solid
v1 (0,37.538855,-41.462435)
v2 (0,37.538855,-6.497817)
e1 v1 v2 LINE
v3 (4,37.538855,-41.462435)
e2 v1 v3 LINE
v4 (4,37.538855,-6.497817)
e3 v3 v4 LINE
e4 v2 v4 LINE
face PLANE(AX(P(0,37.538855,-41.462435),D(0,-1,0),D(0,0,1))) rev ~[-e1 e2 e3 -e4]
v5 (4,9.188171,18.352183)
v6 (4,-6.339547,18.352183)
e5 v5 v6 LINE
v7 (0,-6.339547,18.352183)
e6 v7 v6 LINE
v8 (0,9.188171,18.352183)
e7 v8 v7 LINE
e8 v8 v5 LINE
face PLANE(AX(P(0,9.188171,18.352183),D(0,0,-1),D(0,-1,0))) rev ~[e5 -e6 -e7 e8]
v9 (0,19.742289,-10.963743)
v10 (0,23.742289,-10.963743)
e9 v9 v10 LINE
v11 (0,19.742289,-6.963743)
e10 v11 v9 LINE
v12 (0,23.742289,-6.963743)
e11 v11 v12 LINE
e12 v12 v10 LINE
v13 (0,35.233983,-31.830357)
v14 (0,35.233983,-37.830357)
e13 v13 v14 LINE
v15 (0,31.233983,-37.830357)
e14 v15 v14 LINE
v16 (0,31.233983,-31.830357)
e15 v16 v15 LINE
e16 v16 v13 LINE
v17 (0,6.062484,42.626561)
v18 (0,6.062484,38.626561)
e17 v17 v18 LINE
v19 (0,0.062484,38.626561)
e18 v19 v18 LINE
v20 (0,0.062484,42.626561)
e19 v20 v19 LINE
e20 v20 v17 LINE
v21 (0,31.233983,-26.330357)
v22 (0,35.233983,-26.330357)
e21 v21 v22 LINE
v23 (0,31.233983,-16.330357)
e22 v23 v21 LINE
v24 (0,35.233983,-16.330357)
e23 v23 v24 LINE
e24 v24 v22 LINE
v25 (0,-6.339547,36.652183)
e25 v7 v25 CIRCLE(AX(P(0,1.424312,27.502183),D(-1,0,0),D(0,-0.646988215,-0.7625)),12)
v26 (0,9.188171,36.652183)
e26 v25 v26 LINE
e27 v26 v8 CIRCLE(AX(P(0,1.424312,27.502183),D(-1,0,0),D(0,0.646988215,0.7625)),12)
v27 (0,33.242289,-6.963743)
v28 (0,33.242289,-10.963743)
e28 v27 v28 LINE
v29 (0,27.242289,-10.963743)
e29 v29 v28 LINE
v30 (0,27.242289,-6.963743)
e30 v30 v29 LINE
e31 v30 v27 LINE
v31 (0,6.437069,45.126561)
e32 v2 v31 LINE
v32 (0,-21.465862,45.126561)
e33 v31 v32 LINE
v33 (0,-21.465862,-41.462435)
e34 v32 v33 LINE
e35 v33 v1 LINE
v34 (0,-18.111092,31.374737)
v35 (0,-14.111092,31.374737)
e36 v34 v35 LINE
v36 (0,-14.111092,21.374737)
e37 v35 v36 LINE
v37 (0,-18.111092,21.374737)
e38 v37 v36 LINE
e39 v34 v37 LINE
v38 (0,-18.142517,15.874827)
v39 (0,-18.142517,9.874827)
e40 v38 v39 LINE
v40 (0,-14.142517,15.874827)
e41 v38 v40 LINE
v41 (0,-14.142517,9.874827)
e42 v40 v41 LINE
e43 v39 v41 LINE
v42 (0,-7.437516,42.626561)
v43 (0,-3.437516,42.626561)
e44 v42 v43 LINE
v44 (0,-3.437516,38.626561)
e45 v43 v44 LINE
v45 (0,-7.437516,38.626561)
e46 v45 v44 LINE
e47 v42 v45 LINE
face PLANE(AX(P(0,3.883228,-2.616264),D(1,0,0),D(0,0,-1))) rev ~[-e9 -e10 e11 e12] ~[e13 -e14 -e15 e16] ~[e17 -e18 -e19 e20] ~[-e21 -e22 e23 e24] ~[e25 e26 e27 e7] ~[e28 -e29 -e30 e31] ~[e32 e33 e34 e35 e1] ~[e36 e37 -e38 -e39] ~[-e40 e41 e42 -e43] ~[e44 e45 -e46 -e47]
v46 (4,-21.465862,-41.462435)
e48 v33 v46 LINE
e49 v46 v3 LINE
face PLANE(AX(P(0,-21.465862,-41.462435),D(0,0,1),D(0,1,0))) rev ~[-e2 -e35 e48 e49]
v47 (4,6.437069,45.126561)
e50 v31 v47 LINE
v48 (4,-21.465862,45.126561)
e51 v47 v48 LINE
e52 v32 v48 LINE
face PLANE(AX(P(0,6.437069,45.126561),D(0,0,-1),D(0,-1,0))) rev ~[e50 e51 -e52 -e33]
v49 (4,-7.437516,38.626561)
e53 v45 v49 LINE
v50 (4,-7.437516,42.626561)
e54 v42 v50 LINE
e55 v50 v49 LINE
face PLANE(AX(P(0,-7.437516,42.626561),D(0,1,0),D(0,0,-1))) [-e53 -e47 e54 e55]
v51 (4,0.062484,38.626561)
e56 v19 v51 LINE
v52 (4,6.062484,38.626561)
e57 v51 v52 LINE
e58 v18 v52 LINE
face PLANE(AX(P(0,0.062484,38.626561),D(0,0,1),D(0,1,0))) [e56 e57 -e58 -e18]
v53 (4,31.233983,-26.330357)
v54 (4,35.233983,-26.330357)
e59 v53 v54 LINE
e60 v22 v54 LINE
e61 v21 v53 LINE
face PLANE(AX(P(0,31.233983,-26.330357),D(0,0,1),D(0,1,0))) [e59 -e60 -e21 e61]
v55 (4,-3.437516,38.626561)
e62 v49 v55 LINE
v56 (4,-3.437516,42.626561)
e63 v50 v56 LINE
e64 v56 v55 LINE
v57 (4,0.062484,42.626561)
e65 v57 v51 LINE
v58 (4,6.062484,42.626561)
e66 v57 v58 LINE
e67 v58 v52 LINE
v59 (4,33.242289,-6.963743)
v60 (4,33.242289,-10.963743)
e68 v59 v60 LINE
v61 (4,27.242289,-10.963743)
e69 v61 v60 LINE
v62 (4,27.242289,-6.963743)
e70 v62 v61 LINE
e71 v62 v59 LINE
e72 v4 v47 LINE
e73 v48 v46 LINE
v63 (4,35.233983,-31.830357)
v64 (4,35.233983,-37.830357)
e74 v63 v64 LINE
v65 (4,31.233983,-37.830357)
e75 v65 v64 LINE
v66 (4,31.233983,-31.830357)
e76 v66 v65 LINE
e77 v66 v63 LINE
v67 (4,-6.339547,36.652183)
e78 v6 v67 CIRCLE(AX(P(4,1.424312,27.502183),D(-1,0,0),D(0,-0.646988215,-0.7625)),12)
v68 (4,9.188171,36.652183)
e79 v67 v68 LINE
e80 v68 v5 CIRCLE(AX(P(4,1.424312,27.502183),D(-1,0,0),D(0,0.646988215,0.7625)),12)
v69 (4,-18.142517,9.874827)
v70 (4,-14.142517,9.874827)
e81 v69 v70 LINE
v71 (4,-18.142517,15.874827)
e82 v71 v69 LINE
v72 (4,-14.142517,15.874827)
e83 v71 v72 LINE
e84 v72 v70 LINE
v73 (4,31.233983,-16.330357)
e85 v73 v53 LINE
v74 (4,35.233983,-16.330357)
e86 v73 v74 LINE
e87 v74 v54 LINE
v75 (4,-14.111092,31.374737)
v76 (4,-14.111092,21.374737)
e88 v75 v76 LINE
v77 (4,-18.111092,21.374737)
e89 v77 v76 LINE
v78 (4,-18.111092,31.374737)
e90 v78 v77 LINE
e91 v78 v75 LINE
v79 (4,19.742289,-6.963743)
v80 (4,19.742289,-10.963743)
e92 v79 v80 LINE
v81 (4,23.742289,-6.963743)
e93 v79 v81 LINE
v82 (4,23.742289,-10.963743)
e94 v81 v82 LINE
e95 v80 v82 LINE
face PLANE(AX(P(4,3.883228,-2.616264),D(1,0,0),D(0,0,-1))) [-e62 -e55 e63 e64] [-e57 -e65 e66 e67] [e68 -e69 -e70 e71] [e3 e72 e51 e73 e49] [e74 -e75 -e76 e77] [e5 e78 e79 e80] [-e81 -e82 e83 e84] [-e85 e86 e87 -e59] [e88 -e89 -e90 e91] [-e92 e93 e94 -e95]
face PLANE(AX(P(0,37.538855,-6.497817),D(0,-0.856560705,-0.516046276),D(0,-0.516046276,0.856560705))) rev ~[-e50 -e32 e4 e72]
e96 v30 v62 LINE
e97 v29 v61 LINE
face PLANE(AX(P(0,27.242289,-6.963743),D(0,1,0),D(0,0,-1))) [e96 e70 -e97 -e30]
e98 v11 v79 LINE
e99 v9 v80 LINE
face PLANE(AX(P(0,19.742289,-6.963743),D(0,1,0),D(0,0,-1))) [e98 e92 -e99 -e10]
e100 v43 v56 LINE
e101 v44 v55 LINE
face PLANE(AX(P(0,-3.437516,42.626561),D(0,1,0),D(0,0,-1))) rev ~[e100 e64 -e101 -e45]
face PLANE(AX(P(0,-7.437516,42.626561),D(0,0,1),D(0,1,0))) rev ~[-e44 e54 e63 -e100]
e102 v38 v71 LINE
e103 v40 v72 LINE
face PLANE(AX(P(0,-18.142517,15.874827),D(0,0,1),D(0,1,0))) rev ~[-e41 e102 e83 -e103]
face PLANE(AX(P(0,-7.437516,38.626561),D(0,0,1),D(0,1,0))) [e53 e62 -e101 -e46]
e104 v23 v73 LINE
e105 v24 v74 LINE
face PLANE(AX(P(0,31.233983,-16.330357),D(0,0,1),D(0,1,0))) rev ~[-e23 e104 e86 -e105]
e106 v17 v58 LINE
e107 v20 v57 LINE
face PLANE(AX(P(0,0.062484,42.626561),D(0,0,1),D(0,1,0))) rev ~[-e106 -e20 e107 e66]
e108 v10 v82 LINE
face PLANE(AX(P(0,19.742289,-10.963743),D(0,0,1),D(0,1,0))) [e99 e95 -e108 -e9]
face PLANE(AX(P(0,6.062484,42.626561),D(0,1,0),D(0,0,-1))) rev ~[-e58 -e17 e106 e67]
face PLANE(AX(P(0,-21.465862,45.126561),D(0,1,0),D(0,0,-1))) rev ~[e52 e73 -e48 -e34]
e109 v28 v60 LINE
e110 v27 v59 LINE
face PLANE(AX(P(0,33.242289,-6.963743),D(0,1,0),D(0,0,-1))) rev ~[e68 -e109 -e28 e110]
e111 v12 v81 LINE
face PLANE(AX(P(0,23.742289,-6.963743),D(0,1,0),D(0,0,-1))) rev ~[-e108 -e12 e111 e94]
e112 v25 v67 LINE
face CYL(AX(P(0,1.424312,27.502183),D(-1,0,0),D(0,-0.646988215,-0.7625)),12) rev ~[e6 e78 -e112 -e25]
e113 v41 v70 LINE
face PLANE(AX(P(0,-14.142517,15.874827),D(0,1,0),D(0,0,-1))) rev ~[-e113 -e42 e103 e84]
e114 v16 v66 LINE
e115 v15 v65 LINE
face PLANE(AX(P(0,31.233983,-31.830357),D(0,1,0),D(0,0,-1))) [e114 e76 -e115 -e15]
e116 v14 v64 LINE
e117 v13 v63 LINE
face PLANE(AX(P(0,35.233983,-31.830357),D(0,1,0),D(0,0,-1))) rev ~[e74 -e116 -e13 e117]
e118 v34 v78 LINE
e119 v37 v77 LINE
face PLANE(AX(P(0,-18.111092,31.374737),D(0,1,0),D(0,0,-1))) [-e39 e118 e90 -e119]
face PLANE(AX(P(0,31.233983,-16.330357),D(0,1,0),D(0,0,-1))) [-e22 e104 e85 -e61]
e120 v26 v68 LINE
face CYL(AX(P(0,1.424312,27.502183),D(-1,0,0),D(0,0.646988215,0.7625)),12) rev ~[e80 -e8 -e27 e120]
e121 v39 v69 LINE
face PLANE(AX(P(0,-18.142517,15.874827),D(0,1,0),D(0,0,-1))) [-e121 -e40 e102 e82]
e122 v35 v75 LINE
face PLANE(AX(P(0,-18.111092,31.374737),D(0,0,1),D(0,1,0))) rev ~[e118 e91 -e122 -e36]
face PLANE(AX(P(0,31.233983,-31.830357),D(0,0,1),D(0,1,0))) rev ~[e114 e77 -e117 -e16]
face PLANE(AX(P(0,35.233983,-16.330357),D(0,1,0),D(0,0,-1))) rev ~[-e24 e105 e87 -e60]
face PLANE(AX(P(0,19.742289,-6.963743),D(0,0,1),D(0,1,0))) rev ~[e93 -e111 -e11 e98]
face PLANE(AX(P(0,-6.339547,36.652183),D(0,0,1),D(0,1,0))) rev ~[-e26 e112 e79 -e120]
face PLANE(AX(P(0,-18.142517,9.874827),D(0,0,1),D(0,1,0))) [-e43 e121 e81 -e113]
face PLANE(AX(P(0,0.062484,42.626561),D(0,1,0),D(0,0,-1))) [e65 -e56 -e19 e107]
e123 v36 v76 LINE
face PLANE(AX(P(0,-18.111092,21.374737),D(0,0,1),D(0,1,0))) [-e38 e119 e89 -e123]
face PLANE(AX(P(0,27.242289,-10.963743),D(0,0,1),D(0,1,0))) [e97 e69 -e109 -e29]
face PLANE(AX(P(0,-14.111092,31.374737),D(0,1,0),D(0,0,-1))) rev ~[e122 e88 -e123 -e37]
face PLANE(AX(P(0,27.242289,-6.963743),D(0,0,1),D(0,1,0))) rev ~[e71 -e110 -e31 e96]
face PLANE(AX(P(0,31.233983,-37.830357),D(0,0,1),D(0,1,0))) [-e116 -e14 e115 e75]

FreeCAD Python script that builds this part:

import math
import FreeCAD as App
import Part
import Sketcher

V = App.Vector

doc = App.newDocument("Part")
body = doc.addObject("PartDesign::Body", "Body")

# Sketch on YZ plane
sketch1 = body.newObject("Sketcher::SketchObject", "Sketch")
sketch1.AttachmentSupport = (doc.getObject("YZ_Plane"), [""])
sketch1.MapMode = "FlatFace"
sketch1.addGeometry([
    Part.LineSegment(V(-21.5, 45.1, 0), V(-21.5, -41.5, 0)),  # 0
    Part.LineSegment(V(-21.5, -41.5, 0), V(37.5, -41.5, 0)),  # 1
    Part.LineSegment(V(37.5, -41.5, 0), V(37.5, -6.5, 0)),  # 2
    Part.LineSegment(V(37.5, -6.5, 0), V(6.4, 45.1, 0)),  # 3
    Part.LineSegment(V(6.4, 45.1, 0), V(-21.5, 45.1, 0)),  # 4
    Part.LineSegment(V(-18.1, 21.4, 0), V(-18.1, 31.4, 0)),  # 5
    Part.LineSegment(V(-18.1, 31.4, 0), V(-14.1, 31.4, 0)),  # 6
    Part.LineSegment(V(-14.1, 31.4, 0), V(-14.1, 21.4, 0)),  # 7
    Part.LineSegment(V(-14.1, 21.4, 0), V(-18.1, 21.4, 0)),  # 8
    Part.LineSegment(V(-7.4, 38.6, 0), V(-7.4, 42.6, 0)),  # 9
    Part.LineSegment(V(-7.4, 42.6, 0), V(-3.4, 42.6, 0)),  # 10
    Part.LineSegment(V(-3.4, 42.6, 0), V(-3.4, 38.6, 0)),  # 11
    Part.LineSegment(V(-3.4, 38.6, 0), V(-7.4, 38.6, 0)),  # 12
    Part.LineSegment(V(-18.1, 9.9, 0), V(-18.1, 15.9, 0)),  # 13
    Part.LineSegment(V(-18.1, 15.9, 0), V(-14.1, 15.9, 0)),  # 14
    Part.LineSegment(V(-14.1, 15.9, 0), V(-14.1, 9.9, 0)),  # 15
    Part.LineSegment(V(-14.1, 9.9, 0), V(-18.1, 9.9, 0)),  # 16
    Part.ArcOfCircle(Part.Circle(V(1.4, 27.5, 0), V(0, 0, 1), 12), math.radians(130), math.radians(230)),  # 17
    Part.LineSegment(V(-6.3, 36.7, 0), V(9.2, 36.7, 0)),  # 18
    Part.ArcOfCircle(Part.Circle(V(1.4, 27.5, 0), V(0, 0, 1), 12), math.radians(-50), math.radians(50)),  # 19
    Part.LineSegment(V(9.2, 18.4, 0), V(-6.3, 18.4, 0)),  # 20
    Part.LineSegment(V(0.1, 38.6, 0), V(0.1, 42.6, 0)),  # 21
    Part.LineSegment(V(0.1, 42.6, 0), V(6.1, 42.6, 0)),  # 22
    Part.LineSegment(V(6.1, 42.6, 0), V(6.1, 38.6, 0)),  # 23
    Part.LineSegment(V(6.1, 38.6, 0), V(0.1, 38.6, 0)),  # 24
    Part.LineSegment(V(19.7, -11, 0), V(19.7, -7, 0)),  # 25
    Part.LineSegment(V(19.7, -7, 0), V(23.7, -7, 0)),  # 26
    Part.LineSegment(V(23.7, -7, 0), V(23.7, -11, 0)),  # 27
    Part.LineSegment(V(23.7, -11, 0), V(19.7, -11, 0)),  # 28
    Part.LineSegment(V(27.2, -11, 0), V(27.2, -7, 0)),  # 29
    Part.LineSegment(V(27.2, -7, 0), V(33.2, -7, 0)),  # 30
    Part.LineSegment(V(33.2, -7, 0), V(33.2, -11, 0)),  # 31
    Part.LineSegment(V(33.2, -11, 0), V(27.2, -11, 0)),  # 32
    Part.LineSegment(V(31.2, -26.3, 0), V(31.2, -16.3, 0)),  # 33
    Part.LineSegment(V(31.2, -16.3, 0), V(35.2, -16.3, 0)),  # 34
    Part.LineSegment(V(35.2, -16.3, 0), V(35.2, -26.3, 0)),  # 35
    Part.LineSegment(V(35.2, -26.3, 0), V(31.2, -26.3, 0)),  # 36
    Part.LineSegment(V(31.2, -37.8, 0), V(31.2, -31.8, 0)),  # 37
    Part.LineSegment(V(31.2, -31.8, 0), V(35.2, -31.8, 0)),  # 38
    Part.LineSegment(V(35.2, -31.8, 0), V(35.2, -37.8, 0)),  # 39
    Part.LineSegment(V(35.2, -37.8, 0), V(31.2, -37.8, 0)),  # 40
], False)
sketch1.addConstraint([
    Sketcher.Constraint("Coincident", 0, 2, 1, 1),
    Sketcher.Constraint("Coincident", 1, 2, 2, 1),
    Sketcher.Constraint("Coincident", 2, 2, 3, 1),
    Sketcher.Constraint("Coincident", 3, 2, 4, 1),
    Sketcher.Constraint("Coincident", 4, 2, 0, 1),
    Sketcher.Constraint("Coincident", 5, 2, 6, 1),
    Sketcher.Constraint("Coincident", 6, 2, 7, 1),
    Sketcher.Constraint("Coincident", 7, 2, 8, 1),
    Sketcher.Constraint("Coincident", 8, 2, 5, 1),
    Sketcher.Constraint("Coincident", 9, 2, 10, 1),
    Sketcher.Constraint("Coincident", 10, 2, 11, 1),
    Sketcher.Constraint("Coincident", 11, 2, 12, 1),
    Sketcher.Constraint("Coincident", 12, 2, 9, 1),
    Sketcher.Constraint("Coincident", 13, 2, 14, 1),
    Sketcher.Constraint("Coincident", 14, 2, 15, 1),
    Sketcher.Constraint("Coincident", 15, 2, 16, 1),
    Sketcher.Constraint("Coincident", 16, 2, 13, 1),
    Sketcher.Constraint("Coincident", 17, 1, 18, 1),
    Sketcher.Constraint("Coincident", 18, 2, 19, 2),
    Sketcher.Constraint("Coincident", 19, 1, 20, 1),
    Sketcher.Constraint("Coincident", 20, 2, 17, 2),
    Sketcher.Constraint("Coincident", 21, 2, 22, 1),
    Sketcher.Constraint("Coincident", 22, 2, 23, 1),
    Sketcher.Constraint("Coincident", 23, 2, 24, 1),
    Sketcher.Constraint("Coincident", 24, 2, 21, 1),
    Sketcher.Constraint("Coincident", 25, 2, 26, 1),
    Sketcher.Constraint("Coincident", 26, 2, 27, 1),
    Sketcher.Constraint("Coincident", 27, 2, 28, 1),
    Sketcher.Constraint("Coincident", 28, 2, 25, 1),
    Sketcher.Constraint("Coincident", 29, 2, 30, 1),
    Sketcher.Constraint("Coincident", 30, 2, 31, 1),
    Sketcher.Constraint("Coincident", 31, 2, 32, 1),
    Sketcher.Constraint("Coincident", 32, 2, 29, 1),
    Sketcher.Constraint("Coincident", 33, 2, 34, 1),
    Sketcher.Constraint("Coincident", 34, 2, 35, 1),
    Sketcher.Constraint("Coincident", 35, 2, 36, 1),
    Sketcher.Constraint("Coincident", 36, 2, 33, 1),
    Sketcher.Constraint("Coincident", 37, 2, 38, 1),
    Sketcher.Constraint("Coincident", 38, 2, 39, 1),
    Sketcher.Constraint("Coincident", 39, 2, 40, 1),
    Sketcher.Constraint("Coincident", 40, 2, 37, 1),
    Sketcher.Constraint("Vertical", 0),
    Sketcher.Constraint("Horizontal", 1),
    Sketcher.Constraint("Vertical", 2),
    Sketcher.Constraint("Horizontal", 4),
    Sketcher.Constraint("Vertical", 5),
    Sketcher.Constraint("Horizontal", 6),
    Sketcher.Constraint("Vertical", 7),
    Sketcher.Constraint("Horizontal", 8),
    Sketcher.Constraint("Vertical", 9),
    Sketcher.Constraint("Horizontal", 10),
    Sketcher.Constraint("Vertical", 11),
    Sketcher.Constraint("Horizontal", 12),
    Sketcher.Constraint("Vertical", 13),
    Sketcher.Constraint("Horizontal", 14),
    Sketcher.Constraint("Vertical", 15),
    Sketcher.Constraint("Horizontal", 16),
    Sketcher.Constraint("Horizontal", 18),
    Sketcher.Constraint("Horizontal", 20),
    Sketcher.Constraint("Vertical", 21),
    Sketcher.Constraint("Horizontal", 22),
    Sketcher.Constraint("Vertical", 23),
    Sketcher.Constraint("Horizontal", 24),
    Sketcher.Constraint("Vertical", 25),
    Sketcher.Constraint("Horizontal", 26),
    Sketcher.Constraint("Vertical", 27),
    Sketcher.Constraint("Horizontal", 28),
    Sketcher.Constraint("Vertical", 29),
    Sketcher.Constraint("Horizontal", 30),
    Sketcher.Constraint("Vertical", 31),
    Sketcher.Constraint("Horizontal", 32),
    Sketcher.Constraint("Vertical", 33),
    Sketcher.Constraint("Horizontal", 34),
    Sketcher.Constraint("Vertical", 35),
    Sketcher.Constraint("Horizontal", 36),
    Sketcher.Constraint("Vertical", 37),
    Sketcher.Constraint("Horizontal", 38),
    Sketcher.Constraint("Vertical", 39),
    Sketcher.Constraint("Horizontal", 40),
    Sketcher.Constraint("Coincident", 19, 3, 17, 3),
    Sketcher.Constraint("Equal", 17, 19),
    Sketcher.Constraint("Horizontal", 10, 2, 21, 2),
    Sketcher.Constraint("Horizontal", 12, 2, 23, 2),
    Sketcher.Constraint("Horizontal", 26, 2, 29, 2),
    Sketcher.Constraint("Horizontal", 28, 2, 31, 2),
    Sketcher.Constraint("Vertical", 18, 2, 19, 1),
    Sketcher.Constraint("Vertical", 36, 2, 37, 2),
    Sketcher.Constraint("Vertical", 35, 2, 38, 2),
    Sketcher.Constraint("Equal", 8, 10),
    Sketcher.Constraint("Equal", 12, 14),
    Sketcher.Constraint("Equal", 16, 26),
    Sketcher.Constraint("Equal", 24, 30),
    Sketcher.Constraint("Equal", 28, 34),
    Sketcher.Constraint("Equal", 40, 9),
    Sketcher.Constraint("Equal", 32, 13),
    Sketcher.Constraint("Equal", 23, 25),
    Sketcher.Constraint("Equal", 7, 33),
    Sketcher.Constraint("Equal", 15, 37),
    Sketcher.Constraint("Radius", 17, 12.0),
    Sketcher.Constraint("DistanceX", 6, 1, 6, 2, 4.0),
    Sketcher.Constraint("DistanceX", 22, 1, 22, 2, 6.0),
    Sketcher.Constraint("DistanceY", 5, 1, 5, 2, 10.0),
    Sketcher.Constraint("DistanceY", 2, 2, 19, 3, 34.0),
    Sketcher.Constraint("DistanceY", 9, 2, 3, 2, 2.5),
    Sketcher.Constraint("DistanceY", 19, 1, 18, 2, 18.3),
    Sketcher.Constraint("DistanceX", 10, 2, 21, 2, 3.5),
    Sketcher.Constraint("DistanceX", 26, 2, 29, 2, 3.5),
    Sketcher.Constraint("DistanceY", 37, 2, 36, 2, 5.5),
    Sketcher.Constraint("DistanceX", 4, 2, 4, 1, 27.902931),
    Sketcher.Constraint("DistanceY", 2, 1, 2, 2, 34.964618),
    Sketcher.Constraint("DistanceX", 3, 2, 18, 2, 2.751102),
    Sketcher.Constraint("DistanceX", 1, 1, 1, 2, 59.004717),
    Sketcher.Constraint("DistanceY", 0, 2, 0, 1, 86.588996),
    Sketcher.Constraint("DistanceX", -1, 1, 17, 3, 1.424312),
    Sketcher.Constraint("DistanceY", -1, 1, 3, 2, 45.126561),
    Sketcher.Constraint("DistanceX", 5, 2, -1, 1, 18.111092),
    Sketcher.Constraint("DistanceX", -1, 1, 25, 2, 19.742289),
    Sketcher.Constraint("DistanceY", 13, 2, 8, 2, 5.49991),
    Sketcher.Constraint("DistanceX", 13, 2, 17, 3, 19.566829),
    Sketcher.Constraint("DistanceX", 12, 2, 17, 1, 1.097969),
    Sketcher.Constraint("DistanceY", 25, 2, 15, 2, 16.83857),
    Sketcher.Constraint("DistanceX", 34, 2, 2, 2, 2.304872),
    Sketcher.Constraint("DistanceY", 34, 2, 2, 2, 9.83254),
    Sketcher.Constraint("DistanceY", -1, 1, 5, 2, 31.374737),
])
pad1 = body.newObject("PartDesign::Pad", "Pad")
pad1.Profile = sketch1
pad1.Length = 4

doc.recompute()
